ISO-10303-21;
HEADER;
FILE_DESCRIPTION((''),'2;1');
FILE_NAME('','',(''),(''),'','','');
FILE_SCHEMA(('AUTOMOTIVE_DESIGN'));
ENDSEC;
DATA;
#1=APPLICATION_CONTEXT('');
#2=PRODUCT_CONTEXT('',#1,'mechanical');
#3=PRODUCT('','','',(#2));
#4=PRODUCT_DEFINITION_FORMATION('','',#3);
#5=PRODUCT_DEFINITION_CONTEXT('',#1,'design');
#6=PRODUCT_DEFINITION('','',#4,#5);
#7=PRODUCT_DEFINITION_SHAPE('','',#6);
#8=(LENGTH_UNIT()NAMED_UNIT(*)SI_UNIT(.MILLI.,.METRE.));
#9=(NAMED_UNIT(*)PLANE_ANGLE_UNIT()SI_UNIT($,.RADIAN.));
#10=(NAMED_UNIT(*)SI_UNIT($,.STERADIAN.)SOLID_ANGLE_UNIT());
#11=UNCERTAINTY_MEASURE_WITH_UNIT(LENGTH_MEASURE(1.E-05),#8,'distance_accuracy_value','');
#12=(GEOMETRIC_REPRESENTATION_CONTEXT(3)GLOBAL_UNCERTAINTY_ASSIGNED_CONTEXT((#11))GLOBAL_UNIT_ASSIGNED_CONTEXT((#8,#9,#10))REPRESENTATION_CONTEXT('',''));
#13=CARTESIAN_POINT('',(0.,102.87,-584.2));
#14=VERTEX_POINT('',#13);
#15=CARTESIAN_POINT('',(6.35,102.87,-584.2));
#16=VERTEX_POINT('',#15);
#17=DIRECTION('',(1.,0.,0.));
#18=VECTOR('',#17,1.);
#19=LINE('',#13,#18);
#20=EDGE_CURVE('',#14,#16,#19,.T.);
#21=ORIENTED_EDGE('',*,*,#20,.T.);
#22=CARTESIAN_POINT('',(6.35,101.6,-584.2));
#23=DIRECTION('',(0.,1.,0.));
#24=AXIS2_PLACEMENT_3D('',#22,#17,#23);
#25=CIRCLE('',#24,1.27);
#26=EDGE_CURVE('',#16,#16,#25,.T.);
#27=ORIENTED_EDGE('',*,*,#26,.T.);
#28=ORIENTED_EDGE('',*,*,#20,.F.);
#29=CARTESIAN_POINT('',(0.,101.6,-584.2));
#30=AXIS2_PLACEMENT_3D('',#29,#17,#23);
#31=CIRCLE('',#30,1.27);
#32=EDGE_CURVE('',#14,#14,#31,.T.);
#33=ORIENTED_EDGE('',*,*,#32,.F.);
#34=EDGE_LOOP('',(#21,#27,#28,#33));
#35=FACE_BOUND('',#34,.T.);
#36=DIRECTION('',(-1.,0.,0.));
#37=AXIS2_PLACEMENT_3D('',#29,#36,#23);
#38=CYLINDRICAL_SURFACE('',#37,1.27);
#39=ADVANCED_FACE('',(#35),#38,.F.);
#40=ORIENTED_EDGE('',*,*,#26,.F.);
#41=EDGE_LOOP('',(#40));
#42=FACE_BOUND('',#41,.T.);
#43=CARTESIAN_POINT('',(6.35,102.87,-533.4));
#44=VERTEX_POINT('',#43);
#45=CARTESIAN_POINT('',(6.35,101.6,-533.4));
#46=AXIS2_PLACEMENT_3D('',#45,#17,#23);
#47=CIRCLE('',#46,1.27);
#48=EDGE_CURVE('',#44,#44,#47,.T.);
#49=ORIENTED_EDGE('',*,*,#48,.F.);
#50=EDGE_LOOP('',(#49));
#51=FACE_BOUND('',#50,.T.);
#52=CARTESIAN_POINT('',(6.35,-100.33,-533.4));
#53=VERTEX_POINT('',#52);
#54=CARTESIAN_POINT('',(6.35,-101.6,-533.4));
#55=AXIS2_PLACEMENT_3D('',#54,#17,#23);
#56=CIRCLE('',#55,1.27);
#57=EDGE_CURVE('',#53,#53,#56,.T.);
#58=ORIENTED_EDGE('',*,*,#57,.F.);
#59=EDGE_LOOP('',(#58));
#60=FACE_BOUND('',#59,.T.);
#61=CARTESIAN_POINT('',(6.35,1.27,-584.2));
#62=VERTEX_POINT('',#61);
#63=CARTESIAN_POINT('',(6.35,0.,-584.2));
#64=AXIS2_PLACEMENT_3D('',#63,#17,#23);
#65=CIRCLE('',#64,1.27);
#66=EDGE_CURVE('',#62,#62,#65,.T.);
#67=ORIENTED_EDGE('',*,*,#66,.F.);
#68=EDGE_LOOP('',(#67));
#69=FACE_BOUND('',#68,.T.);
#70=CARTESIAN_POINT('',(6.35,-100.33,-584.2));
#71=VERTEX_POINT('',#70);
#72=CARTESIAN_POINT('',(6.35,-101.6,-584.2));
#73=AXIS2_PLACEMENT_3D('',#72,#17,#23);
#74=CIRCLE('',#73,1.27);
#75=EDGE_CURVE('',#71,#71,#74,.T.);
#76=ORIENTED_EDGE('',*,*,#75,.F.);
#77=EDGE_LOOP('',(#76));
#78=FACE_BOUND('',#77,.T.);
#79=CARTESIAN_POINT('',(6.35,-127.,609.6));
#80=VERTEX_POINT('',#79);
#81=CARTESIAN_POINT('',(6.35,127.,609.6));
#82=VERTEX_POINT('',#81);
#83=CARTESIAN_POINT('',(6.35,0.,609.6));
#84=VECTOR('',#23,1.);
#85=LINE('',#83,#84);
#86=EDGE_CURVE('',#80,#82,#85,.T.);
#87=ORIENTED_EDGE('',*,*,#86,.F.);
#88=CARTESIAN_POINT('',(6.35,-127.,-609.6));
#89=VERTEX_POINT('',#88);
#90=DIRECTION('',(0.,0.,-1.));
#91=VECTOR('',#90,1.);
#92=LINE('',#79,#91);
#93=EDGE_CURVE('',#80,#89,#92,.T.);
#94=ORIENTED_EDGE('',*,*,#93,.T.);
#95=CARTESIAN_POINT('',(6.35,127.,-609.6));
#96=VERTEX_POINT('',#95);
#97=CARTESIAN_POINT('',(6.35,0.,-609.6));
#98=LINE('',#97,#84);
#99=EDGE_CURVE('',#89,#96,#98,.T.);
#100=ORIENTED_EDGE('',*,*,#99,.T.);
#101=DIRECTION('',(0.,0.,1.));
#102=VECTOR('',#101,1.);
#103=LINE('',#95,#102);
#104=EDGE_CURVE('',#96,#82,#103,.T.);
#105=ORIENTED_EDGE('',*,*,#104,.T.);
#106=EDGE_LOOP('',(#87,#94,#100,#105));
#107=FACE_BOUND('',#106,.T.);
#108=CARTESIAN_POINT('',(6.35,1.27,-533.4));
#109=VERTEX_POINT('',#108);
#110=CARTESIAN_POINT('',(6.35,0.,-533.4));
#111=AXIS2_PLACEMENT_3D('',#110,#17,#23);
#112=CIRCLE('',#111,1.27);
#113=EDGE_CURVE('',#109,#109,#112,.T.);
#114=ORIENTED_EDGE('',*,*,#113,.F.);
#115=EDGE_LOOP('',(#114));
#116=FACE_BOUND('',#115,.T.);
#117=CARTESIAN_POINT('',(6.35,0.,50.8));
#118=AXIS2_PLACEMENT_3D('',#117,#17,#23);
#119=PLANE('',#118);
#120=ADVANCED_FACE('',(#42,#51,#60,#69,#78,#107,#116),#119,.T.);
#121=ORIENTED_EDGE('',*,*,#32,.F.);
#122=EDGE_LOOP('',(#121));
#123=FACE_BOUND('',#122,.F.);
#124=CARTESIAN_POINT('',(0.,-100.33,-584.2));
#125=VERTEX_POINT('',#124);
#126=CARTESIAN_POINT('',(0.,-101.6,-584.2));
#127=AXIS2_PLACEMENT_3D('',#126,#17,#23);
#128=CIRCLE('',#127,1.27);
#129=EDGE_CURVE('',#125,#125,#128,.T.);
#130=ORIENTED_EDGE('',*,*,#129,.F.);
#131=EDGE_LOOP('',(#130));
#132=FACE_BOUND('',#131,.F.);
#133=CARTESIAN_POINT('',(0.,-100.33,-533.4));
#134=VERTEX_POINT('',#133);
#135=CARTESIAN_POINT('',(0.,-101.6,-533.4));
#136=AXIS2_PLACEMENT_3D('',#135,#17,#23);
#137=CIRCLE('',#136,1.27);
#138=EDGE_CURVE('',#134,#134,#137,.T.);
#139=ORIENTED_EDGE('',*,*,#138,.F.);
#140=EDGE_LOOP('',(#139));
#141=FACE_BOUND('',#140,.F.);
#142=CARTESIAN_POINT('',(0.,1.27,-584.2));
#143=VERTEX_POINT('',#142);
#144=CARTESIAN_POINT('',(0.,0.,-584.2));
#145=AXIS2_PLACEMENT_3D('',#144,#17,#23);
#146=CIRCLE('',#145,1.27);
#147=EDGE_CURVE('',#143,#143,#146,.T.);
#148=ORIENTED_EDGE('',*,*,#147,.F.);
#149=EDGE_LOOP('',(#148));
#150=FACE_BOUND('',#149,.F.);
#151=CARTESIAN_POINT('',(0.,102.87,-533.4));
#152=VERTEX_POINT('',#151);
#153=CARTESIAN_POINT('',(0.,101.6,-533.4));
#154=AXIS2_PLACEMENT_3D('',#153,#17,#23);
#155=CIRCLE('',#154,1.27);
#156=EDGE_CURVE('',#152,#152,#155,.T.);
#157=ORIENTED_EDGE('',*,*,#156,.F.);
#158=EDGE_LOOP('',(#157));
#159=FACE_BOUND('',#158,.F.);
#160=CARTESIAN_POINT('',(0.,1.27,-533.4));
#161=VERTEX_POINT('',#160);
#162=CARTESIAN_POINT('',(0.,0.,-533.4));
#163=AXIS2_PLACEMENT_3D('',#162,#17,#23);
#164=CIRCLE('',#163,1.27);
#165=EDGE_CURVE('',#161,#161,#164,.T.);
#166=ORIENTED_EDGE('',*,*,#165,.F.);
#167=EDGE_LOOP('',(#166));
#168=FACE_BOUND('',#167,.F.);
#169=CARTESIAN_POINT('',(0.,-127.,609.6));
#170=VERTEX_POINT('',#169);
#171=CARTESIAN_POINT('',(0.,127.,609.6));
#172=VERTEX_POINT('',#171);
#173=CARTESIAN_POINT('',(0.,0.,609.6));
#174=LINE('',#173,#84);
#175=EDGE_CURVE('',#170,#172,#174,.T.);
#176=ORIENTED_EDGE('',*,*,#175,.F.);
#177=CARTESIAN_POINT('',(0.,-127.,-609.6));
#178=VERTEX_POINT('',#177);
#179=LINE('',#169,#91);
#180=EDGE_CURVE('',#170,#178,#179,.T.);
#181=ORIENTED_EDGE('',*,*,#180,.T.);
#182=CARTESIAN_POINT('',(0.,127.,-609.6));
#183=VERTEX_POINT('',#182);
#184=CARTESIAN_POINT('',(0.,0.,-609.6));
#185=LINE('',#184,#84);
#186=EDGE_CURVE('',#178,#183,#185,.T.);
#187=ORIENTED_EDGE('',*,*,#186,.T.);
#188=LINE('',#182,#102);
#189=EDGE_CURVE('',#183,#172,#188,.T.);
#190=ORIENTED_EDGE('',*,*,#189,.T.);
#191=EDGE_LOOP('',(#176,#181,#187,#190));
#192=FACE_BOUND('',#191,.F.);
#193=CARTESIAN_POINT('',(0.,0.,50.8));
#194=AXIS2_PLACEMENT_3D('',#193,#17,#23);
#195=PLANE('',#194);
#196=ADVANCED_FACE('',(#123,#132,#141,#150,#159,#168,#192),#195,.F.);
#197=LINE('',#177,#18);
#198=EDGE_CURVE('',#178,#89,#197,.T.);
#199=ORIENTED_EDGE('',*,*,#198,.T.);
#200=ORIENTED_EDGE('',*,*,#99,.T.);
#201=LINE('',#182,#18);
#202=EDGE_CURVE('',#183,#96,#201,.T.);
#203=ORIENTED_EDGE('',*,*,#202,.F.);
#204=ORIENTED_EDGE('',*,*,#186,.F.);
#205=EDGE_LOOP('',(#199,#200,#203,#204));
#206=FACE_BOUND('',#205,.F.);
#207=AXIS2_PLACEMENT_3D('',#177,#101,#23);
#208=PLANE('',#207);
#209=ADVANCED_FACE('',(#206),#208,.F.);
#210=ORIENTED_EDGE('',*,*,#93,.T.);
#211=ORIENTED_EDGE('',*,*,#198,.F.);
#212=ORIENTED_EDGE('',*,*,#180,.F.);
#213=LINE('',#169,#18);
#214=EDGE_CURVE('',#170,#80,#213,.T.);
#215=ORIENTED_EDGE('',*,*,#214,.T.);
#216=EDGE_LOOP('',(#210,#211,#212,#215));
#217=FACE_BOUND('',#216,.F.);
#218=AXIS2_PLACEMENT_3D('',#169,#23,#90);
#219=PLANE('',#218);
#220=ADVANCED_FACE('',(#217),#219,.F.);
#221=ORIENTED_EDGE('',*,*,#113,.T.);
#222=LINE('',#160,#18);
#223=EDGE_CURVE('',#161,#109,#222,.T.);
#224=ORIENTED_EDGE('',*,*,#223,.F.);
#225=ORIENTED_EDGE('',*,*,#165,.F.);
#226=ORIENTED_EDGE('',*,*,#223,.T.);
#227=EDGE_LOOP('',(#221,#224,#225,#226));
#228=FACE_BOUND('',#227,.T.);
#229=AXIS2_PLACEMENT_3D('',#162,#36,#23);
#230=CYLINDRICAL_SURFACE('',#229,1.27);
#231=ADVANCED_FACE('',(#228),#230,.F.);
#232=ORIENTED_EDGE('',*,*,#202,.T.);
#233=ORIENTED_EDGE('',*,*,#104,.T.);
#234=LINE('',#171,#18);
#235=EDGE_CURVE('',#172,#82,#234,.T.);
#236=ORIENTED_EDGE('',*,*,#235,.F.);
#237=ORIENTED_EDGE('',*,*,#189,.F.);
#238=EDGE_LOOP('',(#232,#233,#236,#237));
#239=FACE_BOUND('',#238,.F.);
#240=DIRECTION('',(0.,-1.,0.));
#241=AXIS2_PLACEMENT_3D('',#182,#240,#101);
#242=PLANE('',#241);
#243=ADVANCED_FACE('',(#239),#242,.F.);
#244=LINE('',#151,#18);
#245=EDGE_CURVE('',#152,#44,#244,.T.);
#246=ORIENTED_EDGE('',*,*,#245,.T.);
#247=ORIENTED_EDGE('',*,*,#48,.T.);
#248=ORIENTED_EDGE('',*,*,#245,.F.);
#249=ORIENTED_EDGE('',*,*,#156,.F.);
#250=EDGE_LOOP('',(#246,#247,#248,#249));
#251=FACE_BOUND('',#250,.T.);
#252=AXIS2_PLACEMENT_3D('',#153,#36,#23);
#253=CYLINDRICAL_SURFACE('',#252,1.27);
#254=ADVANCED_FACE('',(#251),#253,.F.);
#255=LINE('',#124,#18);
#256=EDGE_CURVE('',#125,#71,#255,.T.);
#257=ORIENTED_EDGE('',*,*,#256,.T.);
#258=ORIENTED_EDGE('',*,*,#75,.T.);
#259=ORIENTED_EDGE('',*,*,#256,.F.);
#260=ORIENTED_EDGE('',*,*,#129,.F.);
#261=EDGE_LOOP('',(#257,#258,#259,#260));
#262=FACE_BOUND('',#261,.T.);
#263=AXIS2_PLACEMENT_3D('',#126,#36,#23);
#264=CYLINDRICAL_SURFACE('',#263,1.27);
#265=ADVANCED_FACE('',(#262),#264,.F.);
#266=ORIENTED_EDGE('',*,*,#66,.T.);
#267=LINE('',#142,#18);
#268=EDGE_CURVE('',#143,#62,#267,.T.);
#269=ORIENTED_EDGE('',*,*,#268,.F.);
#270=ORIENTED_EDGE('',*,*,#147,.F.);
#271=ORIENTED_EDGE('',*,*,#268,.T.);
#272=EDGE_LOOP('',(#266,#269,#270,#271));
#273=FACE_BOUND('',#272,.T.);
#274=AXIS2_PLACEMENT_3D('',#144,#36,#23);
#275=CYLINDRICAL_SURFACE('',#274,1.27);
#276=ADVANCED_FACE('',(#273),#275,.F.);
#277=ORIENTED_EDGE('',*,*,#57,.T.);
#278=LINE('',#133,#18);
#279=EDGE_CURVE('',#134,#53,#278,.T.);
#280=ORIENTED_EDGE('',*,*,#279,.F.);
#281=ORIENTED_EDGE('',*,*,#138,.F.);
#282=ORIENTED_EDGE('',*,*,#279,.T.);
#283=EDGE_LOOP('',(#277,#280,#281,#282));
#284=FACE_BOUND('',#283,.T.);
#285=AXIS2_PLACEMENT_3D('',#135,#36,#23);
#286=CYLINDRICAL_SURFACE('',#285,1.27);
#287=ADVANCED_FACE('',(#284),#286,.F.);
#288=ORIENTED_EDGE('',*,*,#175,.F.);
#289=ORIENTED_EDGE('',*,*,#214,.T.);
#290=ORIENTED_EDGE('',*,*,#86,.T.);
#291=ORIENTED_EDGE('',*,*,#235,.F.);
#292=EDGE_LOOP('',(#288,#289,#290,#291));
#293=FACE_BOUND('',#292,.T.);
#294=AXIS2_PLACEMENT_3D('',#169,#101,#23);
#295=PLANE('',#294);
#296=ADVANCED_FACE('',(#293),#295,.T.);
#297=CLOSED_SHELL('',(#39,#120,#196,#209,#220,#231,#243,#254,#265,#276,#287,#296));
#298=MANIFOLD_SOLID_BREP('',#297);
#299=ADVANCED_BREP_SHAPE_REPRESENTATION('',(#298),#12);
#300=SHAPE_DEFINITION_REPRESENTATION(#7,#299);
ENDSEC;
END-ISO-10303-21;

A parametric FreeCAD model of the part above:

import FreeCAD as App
import Part
import Sketcher

V = App.Vector
Q = App.Units.Quantity

doc = App.newDocument("Part")
body = doc.addObject("PartDesign::Body", "Body")

# Sketch on YZ plane
sketch1 = body.newObject("Sketcher::SketchObject", "Sketch")
sketch1.AttachmentSupport = (doc.getObject("YZ_Plane"), [""])
sketch1.MapMode = "FlatFace"
sketch1.addGeometry([
    Part.LineSegment(V(-127, 609.6, 0), V(-127, -609.6, 0)),  # 0
    Part.LineSegment(V(-127, -609.6, 0), V(127, -609.6, 0)),  # 1
    Part.LineSegment(V(127, -609.6, 0), V(127, 609.6, 0)),  # 2
    Part.LineSegment(V(127, 609.6, 0), V(-127, 609.6, 0)),  # 3
    Part.Circle(V(-101.6, -584.2, 0), V(0, 0, 1), 1.3),  # 4
    Part.Circle(V(0, -584.2, 0), V(0, 0, 1), 1.3),  # 5
    Part.Circle(V(101.6, -584.2, 0), V(0, 0, 1), 1.3),  # 6
    Part.Circle(V(-101.6, -533.4, 0), V(0, 0, 1), 1.3),  # 7
    Part.Circle(V(0, -533.4, 0), V(0, 0, 1), 1.3),  # 8
    Part.Circle(V(101.6, -533.4, 0), V(0, 0, 1), 1.3),  # 9
], False)
sketch1.addConstraint([
    Sketcher.Constraint("Coincident", 0, 2, 1, 1),
    Sketcher.Constraint("Coincident", 1, 2, 2, 1),
    Sketcher.Constraint("Coincident", 2, 2, 3, 1),
    Sketcher.Constraint("Coincident", 3, 2, 0, 1),
    Sketcher.Constraint("Vertical", 0),
    Sketcher.Constraint("Horizontal", 1),
    Sketcher.Constraint("Vertical", 2),
    Sketcher.Constraint("Horizontal", 3),
    Sketcher.Constraint("Equal", 4, 5),
    Sketcher.Constraint("Equal", 5, 6),
    Sketcher.Constraint("Equal", 6, 7),
    Sketcher.Constraint("Equal", 7, 8),
    Sketcher.Constraint("Equal", 8, 9),
    Sketcher.Constraint("Symmetric", 0, 2, 2, 2, -1, 1),
    Sketcher.Constraint("Symmetric", 4, 3, 6, 3, -2),
    Sketcher.Constraint("Symmetric", 7, 3, 9, 3, -2),
    Sketcher.Constraint("PointOnObject", 5, 3, -2),
    Sketcher.Constraint("PointOnObject", 8, 3, -2),
    Sketcher.Constraint("Horizontal", 4, 3, 5, 3),
    Sketcher.Constraint("Horizontal", 7, 3, 8, 3),
    Sketcher.Constraint("Vertical", 4, 3, 7, 3),
    Sketcher.Constraint("Diameter", 4, Q("0.1 in")),
    Sketcher.Constraint("DistanceX", 1, 1, 1, 2, Q("10 in")),
    Sketcher.Constraint("DistanceY", 0, 2, 0, 1, Q("48 in")),
    Sketcher.Constraint("DistanceX", 4, 3, -1, 1, Q("4 in")),
    Sketcher.Constraint("DistanceY", 4, 3, -1, 1, Q("23 in")),
    Sketcher.Constraint("DistanceY", 7, 3, -1, 1, Q("21 in")),
])
pad1 = body.newObject("PartDesign::Pad", "Pad")
pad1.Profile = sketch1
pad1.Length = Q("0.25 in")

doc.recompute()
